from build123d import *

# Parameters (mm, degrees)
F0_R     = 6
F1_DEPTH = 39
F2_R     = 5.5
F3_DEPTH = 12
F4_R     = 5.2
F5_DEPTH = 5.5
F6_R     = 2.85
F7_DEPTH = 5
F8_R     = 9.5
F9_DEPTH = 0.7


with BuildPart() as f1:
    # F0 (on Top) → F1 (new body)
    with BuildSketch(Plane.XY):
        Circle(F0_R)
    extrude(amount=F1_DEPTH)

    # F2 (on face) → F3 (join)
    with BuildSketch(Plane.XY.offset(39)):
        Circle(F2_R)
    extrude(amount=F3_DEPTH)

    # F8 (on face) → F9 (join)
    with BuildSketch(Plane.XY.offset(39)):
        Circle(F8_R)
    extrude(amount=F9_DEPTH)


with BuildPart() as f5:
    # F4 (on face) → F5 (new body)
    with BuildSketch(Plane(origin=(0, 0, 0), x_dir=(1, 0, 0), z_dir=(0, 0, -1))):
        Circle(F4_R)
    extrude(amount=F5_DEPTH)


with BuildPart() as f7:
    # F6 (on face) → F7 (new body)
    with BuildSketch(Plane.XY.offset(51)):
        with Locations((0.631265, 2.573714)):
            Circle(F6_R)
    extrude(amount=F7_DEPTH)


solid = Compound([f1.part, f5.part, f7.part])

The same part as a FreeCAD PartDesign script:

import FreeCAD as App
import Part
import Sketcher

doc = App.newDocument("Part")
body = doc.addObject("PartDesign::Body", "Body")

sketch1 = body.newObject("Sketcher::SketchObject", "Sketch")
sketch1.AttachmentSupport = (doc.getObject("XY_Plane"), [""])
sketch1.MapMode = "FlatFace"
sketch1.addGeometry(Part.Circle(App.Vector(0, 0, 0), App.Vector(0, 0, 1), 6), False)
sketch1.addConstraint([
    Sketcher.Constraint("Coincident", 0, 3, -1, 1),
    Sketcher.Constraint("Diameter", 0, 12.0),
])
pad1 = body.newObject("PartDesign::Pad", "Pad")
pad1.Profile = sketch1
pad1.Length = 39

sketch2 = body.newObject("Sketcher::SketchObject", "Sketch001")
sketch2.AttachmentSupport = (doc.getObject("XY_Plane"), [""])
sketch2.MapMode = "FlatFace"
sketch2.AttachmentOffset = App.Placement(App.Vector(0, 0, 39), App.Rotation())
sketch2.addGeometry(Part.Circle(App.Vector(0, 0, 0), App.Vector(0, 0, 1), 6), False)
sketch2.addConstraint([
    Sketcher.Constraint("Coincident", 0, 3, -1, 1),
    Sketcher.Constraint("Diameter", 0, 11.0),
])
pad2 = body.newObject("PartDesign::Pad", "Pad001")
pad2.Profile = sketch2
pad2.Length = 12

sketch3 = body.newObject("Sketcher::SketchObject", "Sketch002")
sketch3.AttachmentSupport = (doc.getObject("XY_Plane"), [""])
sketch3.MapMode = "FlatFace"
sketch3.AttachmentOffset = App.Placement(App.Vector(0, 0, 39), App.Rotation())
sketch3.addGeometry(Part.Circle(App.Vector(0, 0, 0), App.Vector(0, 0, 1), 10), False)
sketch3.addConstraint([
    Sketcher.Constraint("Coincident", 0, 3, -1, 1),
    Sketcher.Constraint("Diameter", 0, 19.0),
])
pad3 = body.newObject("PartDesign::Pad", "Pad002")
pad3.Profile = sketch3
pad3.Length = 0.7
body2 = doc.addObject("PartDesign::Body", "Body001")

sketch4 = body2.newObject("Sketcher::SketchObject", "Sketch003")
sketch4.AttachmentSupport = (doc.getObject("XY_Plane001"), [""])
sketch4.MapMode = "FlatFace"
sketch4.addGeometry(Part.Circle(App.Vector(0, 0, 0), App.Vector(0, 0, 1), 5), False)
sketch4.addConstraint([
    Sketcher.Constraint("Coincident", 0, 3, -1, 1),
    Sketcher.Constraint("Diameter", 0, 10.4),
])
pad4 = body2.newObject("PartDesign::Pad", "Pad003")
pad4.Profile = sketch4
pad4.Length = 5.5
pad4.Reversed = True
body3 = doc.addObject("PartDesign::Body", "Body002")

sketch5 = body3.newObject("Sketcher::SketchObject", "Sketch004")
sketch5.AttachmentSupport = (doc.getObject("XY_Plane002"), [""])
sketch5.MapMode = "FlatFace"
sketch5.AttachmentOffset = App.Placement(App.Vector(0, 0, 51), App.Rotation())
sketch5.addGeometry(Part.Circle(App.Vector(0.6, 2.6, 0), App.Vector(0, 0, 1), 2.9), False)
sketch5.addConstraint([
    Sketcher.Constraint("Diameter", 0, 5.7),
    Sketcher.Constraint("DistanceX", -1, 1, 0, 3, 0.631265),
    Sketcher.Constraint("DistanceY", -1, 1, 0, 3, 2.573714),
])
pad5 = body3.newObject("PartDesign::Pad", "Pad004")
pad5.Profile = sketch5
pad5.Length = 5

doc.recompute()
